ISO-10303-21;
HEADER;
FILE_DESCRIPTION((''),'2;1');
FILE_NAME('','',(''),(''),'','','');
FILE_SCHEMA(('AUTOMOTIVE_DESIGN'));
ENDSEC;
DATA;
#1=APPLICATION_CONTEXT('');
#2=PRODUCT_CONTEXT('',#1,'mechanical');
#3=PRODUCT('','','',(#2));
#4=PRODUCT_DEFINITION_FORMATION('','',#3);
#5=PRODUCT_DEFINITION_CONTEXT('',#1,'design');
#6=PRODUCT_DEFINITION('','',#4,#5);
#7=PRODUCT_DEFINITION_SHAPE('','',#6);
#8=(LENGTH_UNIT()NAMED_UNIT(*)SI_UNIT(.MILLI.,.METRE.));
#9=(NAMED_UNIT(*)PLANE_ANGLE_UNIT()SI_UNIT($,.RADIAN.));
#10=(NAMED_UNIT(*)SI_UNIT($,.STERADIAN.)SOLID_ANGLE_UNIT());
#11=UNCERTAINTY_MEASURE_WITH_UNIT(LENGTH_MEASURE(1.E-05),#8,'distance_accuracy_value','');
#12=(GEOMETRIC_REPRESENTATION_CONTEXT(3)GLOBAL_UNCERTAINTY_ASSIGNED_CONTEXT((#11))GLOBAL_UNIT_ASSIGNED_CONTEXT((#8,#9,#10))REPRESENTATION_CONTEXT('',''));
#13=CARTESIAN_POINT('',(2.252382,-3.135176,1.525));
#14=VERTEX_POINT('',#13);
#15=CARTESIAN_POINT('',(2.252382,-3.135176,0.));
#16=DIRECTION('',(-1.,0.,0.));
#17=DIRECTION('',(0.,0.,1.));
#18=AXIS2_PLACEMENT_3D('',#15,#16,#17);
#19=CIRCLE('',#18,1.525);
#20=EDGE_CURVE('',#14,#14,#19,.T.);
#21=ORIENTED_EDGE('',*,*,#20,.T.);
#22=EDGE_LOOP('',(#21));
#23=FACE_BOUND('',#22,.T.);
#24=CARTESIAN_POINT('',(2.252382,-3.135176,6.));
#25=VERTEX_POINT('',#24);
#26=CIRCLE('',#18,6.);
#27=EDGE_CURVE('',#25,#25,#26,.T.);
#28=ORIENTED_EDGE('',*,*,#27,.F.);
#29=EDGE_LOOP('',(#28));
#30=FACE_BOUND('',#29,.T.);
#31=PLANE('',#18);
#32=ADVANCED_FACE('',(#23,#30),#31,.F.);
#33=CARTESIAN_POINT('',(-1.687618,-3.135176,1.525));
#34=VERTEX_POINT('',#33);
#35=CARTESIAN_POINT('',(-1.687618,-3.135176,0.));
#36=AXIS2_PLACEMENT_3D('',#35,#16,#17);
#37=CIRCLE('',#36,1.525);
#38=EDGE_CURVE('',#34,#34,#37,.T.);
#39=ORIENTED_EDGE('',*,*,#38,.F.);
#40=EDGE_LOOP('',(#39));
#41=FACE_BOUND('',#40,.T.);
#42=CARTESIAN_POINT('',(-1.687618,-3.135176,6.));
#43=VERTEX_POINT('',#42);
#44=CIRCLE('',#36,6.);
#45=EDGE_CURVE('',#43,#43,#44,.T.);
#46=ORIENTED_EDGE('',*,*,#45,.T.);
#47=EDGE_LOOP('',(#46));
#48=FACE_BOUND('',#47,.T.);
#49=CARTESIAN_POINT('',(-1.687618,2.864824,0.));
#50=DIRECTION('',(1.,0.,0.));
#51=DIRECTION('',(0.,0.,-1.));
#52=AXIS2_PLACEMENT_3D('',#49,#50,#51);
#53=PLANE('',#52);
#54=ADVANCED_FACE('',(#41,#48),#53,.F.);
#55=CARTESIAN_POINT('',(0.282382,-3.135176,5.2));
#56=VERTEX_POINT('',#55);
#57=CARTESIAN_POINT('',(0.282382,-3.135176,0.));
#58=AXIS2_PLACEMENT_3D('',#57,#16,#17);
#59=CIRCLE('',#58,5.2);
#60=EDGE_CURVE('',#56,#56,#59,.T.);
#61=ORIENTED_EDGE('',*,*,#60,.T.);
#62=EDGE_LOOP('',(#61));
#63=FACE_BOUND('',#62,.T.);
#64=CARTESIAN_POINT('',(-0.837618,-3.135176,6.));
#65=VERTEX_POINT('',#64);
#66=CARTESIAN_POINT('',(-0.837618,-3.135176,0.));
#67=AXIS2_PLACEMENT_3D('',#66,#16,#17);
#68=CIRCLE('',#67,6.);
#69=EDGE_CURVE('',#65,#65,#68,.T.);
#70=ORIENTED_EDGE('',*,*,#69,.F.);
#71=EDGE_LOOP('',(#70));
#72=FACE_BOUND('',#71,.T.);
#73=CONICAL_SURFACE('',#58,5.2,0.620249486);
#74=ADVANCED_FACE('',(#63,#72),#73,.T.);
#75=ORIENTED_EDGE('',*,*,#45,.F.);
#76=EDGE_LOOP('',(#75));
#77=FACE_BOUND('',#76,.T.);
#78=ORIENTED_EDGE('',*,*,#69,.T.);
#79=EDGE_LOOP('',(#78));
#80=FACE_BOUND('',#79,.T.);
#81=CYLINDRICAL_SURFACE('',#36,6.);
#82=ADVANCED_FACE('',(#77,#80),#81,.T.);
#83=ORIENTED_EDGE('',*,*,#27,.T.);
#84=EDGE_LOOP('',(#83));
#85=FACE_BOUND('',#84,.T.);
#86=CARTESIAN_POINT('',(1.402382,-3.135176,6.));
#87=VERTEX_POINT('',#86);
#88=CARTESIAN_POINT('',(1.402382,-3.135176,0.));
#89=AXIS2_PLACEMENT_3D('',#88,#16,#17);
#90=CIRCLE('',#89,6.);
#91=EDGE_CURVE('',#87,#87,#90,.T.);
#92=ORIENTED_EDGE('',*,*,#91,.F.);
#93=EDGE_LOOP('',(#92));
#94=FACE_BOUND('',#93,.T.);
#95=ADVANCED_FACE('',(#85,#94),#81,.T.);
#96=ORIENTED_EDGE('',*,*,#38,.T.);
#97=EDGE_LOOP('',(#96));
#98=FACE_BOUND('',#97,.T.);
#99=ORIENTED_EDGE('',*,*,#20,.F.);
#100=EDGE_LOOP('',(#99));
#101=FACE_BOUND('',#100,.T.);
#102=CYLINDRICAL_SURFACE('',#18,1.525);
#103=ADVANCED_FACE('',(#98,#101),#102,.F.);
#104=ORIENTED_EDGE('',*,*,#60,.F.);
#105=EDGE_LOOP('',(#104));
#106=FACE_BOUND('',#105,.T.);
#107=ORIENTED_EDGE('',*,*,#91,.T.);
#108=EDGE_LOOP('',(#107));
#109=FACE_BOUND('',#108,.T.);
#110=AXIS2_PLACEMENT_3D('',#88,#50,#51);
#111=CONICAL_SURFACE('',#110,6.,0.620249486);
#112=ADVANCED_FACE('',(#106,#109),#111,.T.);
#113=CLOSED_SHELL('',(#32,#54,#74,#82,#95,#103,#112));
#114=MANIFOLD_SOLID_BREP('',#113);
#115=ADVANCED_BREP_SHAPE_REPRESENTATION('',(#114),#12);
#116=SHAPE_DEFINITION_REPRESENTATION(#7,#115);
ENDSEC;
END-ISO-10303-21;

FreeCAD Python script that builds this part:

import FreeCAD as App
import Part
import Sketcher
from FreeCAD import Vector
Q = App.Units.Quantity

doc = App.newDocument("Part")
body = doc.addObject("PartDesign::Body", "Body")

# Sketch on XY plane
sketch1 = body.newObject("Sketcher::SketchObject", "Sketch")
sketch1.AttachmentSupport = (doc.getObject("XY_Plane"), [""])
sketch1.MapMode = "FlatFace"
sketch1.addGeometry(Part.LineSegment(Vector(-0.8, 2.9, 0), Vector(-1.7, 2.9, 0)), False)
sketch1.addGeometry(Part.LineSegment(Vector(-1.7, 2.9, 0), Vector(-1.7, -3.1, 0)), False)
sketch1.addGeometry(Part.LineSegment(Vector(-1.7, -3.1, 0), Vector(2.3, -3.1, 0)), False)
sketch1.addGeometry(Part.LineSegment(Vector(2.3, -3.1, 0), Vector(2.3, 2.9, 0)), False)
sketch1.addGeometry(Part.LineSegment(Vector(2.3, 2.9, 0), Vector(1.4, 2.9, 0)), False)
sketch1.addGeometry(Part.LineSegment(Vector(1.4, 2.9, 0), Vector(0.3, 2.1, 0)), False)
sketch1.addGeometry(Part.LineSegment(Vector(0.3, 2.1, 0), Vector(-0.8, 2.9, 0)), False)
sketch1.addGeometry(Part.LineSegment(Vector(-1.7, -3.1, 0), Vector(2.3, -3.1, 0)), True)  # axis
sketch1.addConstraint(Sketcher.Constraint("Coincident", 0, 2, 1, 1))
sketch1.addConstraint(Sketcher.Constraint("Coincident", 1, 2, 2, 1))
sketch1.addConstraint(Sketcher.Constraint("Coincident", 2, 2, 3, 1))
sketch1.addConstraint(Sketcher.Constraint("Coincident", 3, 2, 4, 1))
sketch1.addConstraint(Sketcher.Constraint("Coincident", 4, 2, 5, 1))
sketch1.addConstraint(Sketcher.Constraint("Coincident", 5, 2, 6, 1))
sketch1.addConstraint(Sketcher.Constraint("Coincident", 6, 2, 0, 1))
sketch1.addConstraint(Sketcher.Constraint("Horizontal", 0))
sketch1.addConstraint(Sketcher.Constraint("Vertical", 1))
sketch1.addConstraint(Sketcher.Constraint("Horizontal", 2))
sketch1.addConstraint(Sketcher.Constraint("Vertical", 3))
sketch1.addConstraint(Sketcher.Constraint("Horizontal", 4))
sketch1.addConstraint(Sketcher.Constraint("Horizontal", 7))
sketch1.addConstraint(Sketcher.Constraint("Coincident", 7, 1, 1, 2))
sketch1.addConstraint(Sketcher.Constraint("Horizontal", 0, 2, 3, 2))
sketch1.addConstraint(Sketcher.Constraint("Vertical", 3, 2, 7, 2))
sketch1.addConstraint(Sketcher.Constraint("Equal", 0, 4))
sketch1.addConstraint(Sketcher.Constraint("Equal", 5, 6))
sketch1.addConstraint(Sketcher.Constraint("DistanceY", 1, 2, 1, 1, Q("6 mm")))
sketch1.addConstraint(Sketcher.Constraint("DistanceX", 0, 2, 0, 1, Q("0.85 mm")))
sketch1.addConstraint(Sketcher.Constraint("DistanceX", 2, 1, 2, 2, Q("3.94 mm")))
sketch1.addConstraint(Sketcher.Constraint("DistanceY", 5, 2, 4, 2, Q("0.8 mm")))
sketch1.addConstraint(Sketcher.Constraint("DistanceX", 0, 2, -1, 1, Q("1.687618 mm")))
sketch1.addConstraint(Sketcher.Constraint("DistanceY", -1, 1, 0, 2, Q("2.864824 mm")))
revolution = body.newObject("PartDesign::Revolution", "Revolution")
revolution.Profile = sketch1
revolution.ReferenceAxis = (sketch1, ["Axis0"])
revolution.Angle = 360

# Sketch on YZ plane
sketch2 = body.newObject("Sketcher::SketchObject", "Sketch001")
sketch2.AttachmentSupport = (doc.getObject("YZ_Plane"), [""])
sketch2.MapMode = "FlatFace"
sketch2.AttachmentOffset = App.Placement(Vector(0, 0, -1.687618), App.Rotation())
sketch2.addGeometry(Part.Circle(Vector(-3.1, 0, 0), Vector(0, 0, 1), 1.5), False)
sketch2.addConstraint(Sketcher.Constraint("PointOnObject", 0, 3, -1))
sketch2.addConstraint(Sketcher.Constraint("Diameter", 0, Q("3.05 mm")))
sketch2.addConstraint(Sketcher.Constraint("DistanceX", 0, 3, -1, 1, Q("3.135176 mm")))
pocket1 = body.newObject("PartDesign::Pocket", "Pocket")
pocket1.Profile = sketch2
pocket1.Type = "ThroughAll"
pocket1.Reversed = True

doc.recompute()
